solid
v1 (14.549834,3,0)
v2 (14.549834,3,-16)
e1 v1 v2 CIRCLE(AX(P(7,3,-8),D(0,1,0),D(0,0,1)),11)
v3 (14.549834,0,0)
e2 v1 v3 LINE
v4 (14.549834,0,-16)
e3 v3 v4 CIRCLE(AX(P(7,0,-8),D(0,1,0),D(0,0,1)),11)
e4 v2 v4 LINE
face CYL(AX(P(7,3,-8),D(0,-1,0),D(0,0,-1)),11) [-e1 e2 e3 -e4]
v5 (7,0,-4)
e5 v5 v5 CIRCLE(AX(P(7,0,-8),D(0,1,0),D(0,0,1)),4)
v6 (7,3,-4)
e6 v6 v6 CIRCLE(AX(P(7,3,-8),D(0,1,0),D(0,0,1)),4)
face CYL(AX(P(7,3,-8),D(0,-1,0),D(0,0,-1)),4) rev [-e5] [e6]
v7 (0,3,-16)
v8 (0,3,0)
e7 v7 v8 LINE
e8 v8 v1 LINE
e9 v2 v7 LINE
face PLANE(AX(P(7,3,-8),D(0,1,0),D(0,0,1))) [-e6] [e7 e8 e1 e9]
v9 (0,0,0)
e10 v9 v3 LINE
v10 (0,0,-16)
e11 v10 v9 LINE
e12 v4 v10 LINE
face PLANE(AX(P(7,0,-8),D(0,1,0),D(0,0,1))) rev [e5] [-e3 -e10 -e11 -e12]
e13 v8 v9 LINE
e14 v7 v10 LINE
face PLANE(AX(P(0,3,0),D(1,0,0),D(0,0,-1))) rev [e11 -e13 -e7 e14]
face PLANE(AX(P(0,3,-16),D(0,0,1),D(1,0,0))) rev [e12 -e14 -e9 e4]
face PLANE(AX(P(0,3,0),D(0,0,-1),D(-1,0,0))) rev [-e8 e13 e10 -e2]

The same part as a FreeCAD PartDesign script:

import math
import FreeCAD as App
import Part
import Sketcher
from FreeCAD import Vector
Q = App.Units.Quantity

doc = App.newDocument("Part")
body = doc.addObject("PartDesign::Body", "Body")

sketch1 = doc.addObject("Sketcher::SketchObject", "Sketch")
body.addObject(sketch1)
sketch1.AttachmentSupport = (doc.XZ_Plane, [""])
sketch1.MapMode = "FlatFace"
sketch1.addGeometry([
    Part.LineSegment(Vector(0, 0, 0), Vector(14.549834, 0, 0)),
    Part.ArcOfCircle(Part.Circle(Vector(7, -8, 0), Vector(0, 0, 1), 11), math.radians(-46.658242), math.radians(46.658242)),
    Part.LineSegment(Vector(14.549834, -16, 0), Vector(0, -16, 0)),
    Part.LineSegment(Vector(0, -16, 0), Vector(0, 0, 0)),
    Part.Circle(Vector(7, -8, 0), Vector(0, 0, 1), 4),
], False)
sketch1.addConstraint([
    Sketcher.Constraint("Coincident", 0, 2, 1, 2),
    Sketcher.Constraint("Coincident", 1, 1, 2, 1),
    Sketcher.Constraint("Coincident", 2, 2, 3, 1),
    Sketcher.Constraint("Coincident", 3, 2, 0, 1),
    Sketcher.Constraint("Horizontal", 0),
    Sketcher.Constraint("Horizontal", 2),
    Sketcher.Constraint("Vertical", 3),
    Sketcher.Constraint("Coincident", 3, 2, -1, 1),
    Sketcher.Constraint("Coincident", 4, 3, 1, 3),
    Sketcher.Constraint("Vertical", 0, 2, 1, 1),
    Sketcher.Constraint("Diameter", 4, Q("8 mm")),
    Sketcher.Constraint("Radius", 1, Q("11 mm")),
    Sketcher.Constraint("DistanceY", 3, 1, 3, 2, Q("16 mm")),
    Sketcher.Constraint("DistanceX", -1, 1, 1, 3, Q("7 mm")),
])
pad1 = doc.addObject("PartDesign::Pad", "Pad")
body.addObject(pad1)
pad1.Profile = sketch1
pad1.Length = 3
pad1.Reversed = True

doc.recompute()
